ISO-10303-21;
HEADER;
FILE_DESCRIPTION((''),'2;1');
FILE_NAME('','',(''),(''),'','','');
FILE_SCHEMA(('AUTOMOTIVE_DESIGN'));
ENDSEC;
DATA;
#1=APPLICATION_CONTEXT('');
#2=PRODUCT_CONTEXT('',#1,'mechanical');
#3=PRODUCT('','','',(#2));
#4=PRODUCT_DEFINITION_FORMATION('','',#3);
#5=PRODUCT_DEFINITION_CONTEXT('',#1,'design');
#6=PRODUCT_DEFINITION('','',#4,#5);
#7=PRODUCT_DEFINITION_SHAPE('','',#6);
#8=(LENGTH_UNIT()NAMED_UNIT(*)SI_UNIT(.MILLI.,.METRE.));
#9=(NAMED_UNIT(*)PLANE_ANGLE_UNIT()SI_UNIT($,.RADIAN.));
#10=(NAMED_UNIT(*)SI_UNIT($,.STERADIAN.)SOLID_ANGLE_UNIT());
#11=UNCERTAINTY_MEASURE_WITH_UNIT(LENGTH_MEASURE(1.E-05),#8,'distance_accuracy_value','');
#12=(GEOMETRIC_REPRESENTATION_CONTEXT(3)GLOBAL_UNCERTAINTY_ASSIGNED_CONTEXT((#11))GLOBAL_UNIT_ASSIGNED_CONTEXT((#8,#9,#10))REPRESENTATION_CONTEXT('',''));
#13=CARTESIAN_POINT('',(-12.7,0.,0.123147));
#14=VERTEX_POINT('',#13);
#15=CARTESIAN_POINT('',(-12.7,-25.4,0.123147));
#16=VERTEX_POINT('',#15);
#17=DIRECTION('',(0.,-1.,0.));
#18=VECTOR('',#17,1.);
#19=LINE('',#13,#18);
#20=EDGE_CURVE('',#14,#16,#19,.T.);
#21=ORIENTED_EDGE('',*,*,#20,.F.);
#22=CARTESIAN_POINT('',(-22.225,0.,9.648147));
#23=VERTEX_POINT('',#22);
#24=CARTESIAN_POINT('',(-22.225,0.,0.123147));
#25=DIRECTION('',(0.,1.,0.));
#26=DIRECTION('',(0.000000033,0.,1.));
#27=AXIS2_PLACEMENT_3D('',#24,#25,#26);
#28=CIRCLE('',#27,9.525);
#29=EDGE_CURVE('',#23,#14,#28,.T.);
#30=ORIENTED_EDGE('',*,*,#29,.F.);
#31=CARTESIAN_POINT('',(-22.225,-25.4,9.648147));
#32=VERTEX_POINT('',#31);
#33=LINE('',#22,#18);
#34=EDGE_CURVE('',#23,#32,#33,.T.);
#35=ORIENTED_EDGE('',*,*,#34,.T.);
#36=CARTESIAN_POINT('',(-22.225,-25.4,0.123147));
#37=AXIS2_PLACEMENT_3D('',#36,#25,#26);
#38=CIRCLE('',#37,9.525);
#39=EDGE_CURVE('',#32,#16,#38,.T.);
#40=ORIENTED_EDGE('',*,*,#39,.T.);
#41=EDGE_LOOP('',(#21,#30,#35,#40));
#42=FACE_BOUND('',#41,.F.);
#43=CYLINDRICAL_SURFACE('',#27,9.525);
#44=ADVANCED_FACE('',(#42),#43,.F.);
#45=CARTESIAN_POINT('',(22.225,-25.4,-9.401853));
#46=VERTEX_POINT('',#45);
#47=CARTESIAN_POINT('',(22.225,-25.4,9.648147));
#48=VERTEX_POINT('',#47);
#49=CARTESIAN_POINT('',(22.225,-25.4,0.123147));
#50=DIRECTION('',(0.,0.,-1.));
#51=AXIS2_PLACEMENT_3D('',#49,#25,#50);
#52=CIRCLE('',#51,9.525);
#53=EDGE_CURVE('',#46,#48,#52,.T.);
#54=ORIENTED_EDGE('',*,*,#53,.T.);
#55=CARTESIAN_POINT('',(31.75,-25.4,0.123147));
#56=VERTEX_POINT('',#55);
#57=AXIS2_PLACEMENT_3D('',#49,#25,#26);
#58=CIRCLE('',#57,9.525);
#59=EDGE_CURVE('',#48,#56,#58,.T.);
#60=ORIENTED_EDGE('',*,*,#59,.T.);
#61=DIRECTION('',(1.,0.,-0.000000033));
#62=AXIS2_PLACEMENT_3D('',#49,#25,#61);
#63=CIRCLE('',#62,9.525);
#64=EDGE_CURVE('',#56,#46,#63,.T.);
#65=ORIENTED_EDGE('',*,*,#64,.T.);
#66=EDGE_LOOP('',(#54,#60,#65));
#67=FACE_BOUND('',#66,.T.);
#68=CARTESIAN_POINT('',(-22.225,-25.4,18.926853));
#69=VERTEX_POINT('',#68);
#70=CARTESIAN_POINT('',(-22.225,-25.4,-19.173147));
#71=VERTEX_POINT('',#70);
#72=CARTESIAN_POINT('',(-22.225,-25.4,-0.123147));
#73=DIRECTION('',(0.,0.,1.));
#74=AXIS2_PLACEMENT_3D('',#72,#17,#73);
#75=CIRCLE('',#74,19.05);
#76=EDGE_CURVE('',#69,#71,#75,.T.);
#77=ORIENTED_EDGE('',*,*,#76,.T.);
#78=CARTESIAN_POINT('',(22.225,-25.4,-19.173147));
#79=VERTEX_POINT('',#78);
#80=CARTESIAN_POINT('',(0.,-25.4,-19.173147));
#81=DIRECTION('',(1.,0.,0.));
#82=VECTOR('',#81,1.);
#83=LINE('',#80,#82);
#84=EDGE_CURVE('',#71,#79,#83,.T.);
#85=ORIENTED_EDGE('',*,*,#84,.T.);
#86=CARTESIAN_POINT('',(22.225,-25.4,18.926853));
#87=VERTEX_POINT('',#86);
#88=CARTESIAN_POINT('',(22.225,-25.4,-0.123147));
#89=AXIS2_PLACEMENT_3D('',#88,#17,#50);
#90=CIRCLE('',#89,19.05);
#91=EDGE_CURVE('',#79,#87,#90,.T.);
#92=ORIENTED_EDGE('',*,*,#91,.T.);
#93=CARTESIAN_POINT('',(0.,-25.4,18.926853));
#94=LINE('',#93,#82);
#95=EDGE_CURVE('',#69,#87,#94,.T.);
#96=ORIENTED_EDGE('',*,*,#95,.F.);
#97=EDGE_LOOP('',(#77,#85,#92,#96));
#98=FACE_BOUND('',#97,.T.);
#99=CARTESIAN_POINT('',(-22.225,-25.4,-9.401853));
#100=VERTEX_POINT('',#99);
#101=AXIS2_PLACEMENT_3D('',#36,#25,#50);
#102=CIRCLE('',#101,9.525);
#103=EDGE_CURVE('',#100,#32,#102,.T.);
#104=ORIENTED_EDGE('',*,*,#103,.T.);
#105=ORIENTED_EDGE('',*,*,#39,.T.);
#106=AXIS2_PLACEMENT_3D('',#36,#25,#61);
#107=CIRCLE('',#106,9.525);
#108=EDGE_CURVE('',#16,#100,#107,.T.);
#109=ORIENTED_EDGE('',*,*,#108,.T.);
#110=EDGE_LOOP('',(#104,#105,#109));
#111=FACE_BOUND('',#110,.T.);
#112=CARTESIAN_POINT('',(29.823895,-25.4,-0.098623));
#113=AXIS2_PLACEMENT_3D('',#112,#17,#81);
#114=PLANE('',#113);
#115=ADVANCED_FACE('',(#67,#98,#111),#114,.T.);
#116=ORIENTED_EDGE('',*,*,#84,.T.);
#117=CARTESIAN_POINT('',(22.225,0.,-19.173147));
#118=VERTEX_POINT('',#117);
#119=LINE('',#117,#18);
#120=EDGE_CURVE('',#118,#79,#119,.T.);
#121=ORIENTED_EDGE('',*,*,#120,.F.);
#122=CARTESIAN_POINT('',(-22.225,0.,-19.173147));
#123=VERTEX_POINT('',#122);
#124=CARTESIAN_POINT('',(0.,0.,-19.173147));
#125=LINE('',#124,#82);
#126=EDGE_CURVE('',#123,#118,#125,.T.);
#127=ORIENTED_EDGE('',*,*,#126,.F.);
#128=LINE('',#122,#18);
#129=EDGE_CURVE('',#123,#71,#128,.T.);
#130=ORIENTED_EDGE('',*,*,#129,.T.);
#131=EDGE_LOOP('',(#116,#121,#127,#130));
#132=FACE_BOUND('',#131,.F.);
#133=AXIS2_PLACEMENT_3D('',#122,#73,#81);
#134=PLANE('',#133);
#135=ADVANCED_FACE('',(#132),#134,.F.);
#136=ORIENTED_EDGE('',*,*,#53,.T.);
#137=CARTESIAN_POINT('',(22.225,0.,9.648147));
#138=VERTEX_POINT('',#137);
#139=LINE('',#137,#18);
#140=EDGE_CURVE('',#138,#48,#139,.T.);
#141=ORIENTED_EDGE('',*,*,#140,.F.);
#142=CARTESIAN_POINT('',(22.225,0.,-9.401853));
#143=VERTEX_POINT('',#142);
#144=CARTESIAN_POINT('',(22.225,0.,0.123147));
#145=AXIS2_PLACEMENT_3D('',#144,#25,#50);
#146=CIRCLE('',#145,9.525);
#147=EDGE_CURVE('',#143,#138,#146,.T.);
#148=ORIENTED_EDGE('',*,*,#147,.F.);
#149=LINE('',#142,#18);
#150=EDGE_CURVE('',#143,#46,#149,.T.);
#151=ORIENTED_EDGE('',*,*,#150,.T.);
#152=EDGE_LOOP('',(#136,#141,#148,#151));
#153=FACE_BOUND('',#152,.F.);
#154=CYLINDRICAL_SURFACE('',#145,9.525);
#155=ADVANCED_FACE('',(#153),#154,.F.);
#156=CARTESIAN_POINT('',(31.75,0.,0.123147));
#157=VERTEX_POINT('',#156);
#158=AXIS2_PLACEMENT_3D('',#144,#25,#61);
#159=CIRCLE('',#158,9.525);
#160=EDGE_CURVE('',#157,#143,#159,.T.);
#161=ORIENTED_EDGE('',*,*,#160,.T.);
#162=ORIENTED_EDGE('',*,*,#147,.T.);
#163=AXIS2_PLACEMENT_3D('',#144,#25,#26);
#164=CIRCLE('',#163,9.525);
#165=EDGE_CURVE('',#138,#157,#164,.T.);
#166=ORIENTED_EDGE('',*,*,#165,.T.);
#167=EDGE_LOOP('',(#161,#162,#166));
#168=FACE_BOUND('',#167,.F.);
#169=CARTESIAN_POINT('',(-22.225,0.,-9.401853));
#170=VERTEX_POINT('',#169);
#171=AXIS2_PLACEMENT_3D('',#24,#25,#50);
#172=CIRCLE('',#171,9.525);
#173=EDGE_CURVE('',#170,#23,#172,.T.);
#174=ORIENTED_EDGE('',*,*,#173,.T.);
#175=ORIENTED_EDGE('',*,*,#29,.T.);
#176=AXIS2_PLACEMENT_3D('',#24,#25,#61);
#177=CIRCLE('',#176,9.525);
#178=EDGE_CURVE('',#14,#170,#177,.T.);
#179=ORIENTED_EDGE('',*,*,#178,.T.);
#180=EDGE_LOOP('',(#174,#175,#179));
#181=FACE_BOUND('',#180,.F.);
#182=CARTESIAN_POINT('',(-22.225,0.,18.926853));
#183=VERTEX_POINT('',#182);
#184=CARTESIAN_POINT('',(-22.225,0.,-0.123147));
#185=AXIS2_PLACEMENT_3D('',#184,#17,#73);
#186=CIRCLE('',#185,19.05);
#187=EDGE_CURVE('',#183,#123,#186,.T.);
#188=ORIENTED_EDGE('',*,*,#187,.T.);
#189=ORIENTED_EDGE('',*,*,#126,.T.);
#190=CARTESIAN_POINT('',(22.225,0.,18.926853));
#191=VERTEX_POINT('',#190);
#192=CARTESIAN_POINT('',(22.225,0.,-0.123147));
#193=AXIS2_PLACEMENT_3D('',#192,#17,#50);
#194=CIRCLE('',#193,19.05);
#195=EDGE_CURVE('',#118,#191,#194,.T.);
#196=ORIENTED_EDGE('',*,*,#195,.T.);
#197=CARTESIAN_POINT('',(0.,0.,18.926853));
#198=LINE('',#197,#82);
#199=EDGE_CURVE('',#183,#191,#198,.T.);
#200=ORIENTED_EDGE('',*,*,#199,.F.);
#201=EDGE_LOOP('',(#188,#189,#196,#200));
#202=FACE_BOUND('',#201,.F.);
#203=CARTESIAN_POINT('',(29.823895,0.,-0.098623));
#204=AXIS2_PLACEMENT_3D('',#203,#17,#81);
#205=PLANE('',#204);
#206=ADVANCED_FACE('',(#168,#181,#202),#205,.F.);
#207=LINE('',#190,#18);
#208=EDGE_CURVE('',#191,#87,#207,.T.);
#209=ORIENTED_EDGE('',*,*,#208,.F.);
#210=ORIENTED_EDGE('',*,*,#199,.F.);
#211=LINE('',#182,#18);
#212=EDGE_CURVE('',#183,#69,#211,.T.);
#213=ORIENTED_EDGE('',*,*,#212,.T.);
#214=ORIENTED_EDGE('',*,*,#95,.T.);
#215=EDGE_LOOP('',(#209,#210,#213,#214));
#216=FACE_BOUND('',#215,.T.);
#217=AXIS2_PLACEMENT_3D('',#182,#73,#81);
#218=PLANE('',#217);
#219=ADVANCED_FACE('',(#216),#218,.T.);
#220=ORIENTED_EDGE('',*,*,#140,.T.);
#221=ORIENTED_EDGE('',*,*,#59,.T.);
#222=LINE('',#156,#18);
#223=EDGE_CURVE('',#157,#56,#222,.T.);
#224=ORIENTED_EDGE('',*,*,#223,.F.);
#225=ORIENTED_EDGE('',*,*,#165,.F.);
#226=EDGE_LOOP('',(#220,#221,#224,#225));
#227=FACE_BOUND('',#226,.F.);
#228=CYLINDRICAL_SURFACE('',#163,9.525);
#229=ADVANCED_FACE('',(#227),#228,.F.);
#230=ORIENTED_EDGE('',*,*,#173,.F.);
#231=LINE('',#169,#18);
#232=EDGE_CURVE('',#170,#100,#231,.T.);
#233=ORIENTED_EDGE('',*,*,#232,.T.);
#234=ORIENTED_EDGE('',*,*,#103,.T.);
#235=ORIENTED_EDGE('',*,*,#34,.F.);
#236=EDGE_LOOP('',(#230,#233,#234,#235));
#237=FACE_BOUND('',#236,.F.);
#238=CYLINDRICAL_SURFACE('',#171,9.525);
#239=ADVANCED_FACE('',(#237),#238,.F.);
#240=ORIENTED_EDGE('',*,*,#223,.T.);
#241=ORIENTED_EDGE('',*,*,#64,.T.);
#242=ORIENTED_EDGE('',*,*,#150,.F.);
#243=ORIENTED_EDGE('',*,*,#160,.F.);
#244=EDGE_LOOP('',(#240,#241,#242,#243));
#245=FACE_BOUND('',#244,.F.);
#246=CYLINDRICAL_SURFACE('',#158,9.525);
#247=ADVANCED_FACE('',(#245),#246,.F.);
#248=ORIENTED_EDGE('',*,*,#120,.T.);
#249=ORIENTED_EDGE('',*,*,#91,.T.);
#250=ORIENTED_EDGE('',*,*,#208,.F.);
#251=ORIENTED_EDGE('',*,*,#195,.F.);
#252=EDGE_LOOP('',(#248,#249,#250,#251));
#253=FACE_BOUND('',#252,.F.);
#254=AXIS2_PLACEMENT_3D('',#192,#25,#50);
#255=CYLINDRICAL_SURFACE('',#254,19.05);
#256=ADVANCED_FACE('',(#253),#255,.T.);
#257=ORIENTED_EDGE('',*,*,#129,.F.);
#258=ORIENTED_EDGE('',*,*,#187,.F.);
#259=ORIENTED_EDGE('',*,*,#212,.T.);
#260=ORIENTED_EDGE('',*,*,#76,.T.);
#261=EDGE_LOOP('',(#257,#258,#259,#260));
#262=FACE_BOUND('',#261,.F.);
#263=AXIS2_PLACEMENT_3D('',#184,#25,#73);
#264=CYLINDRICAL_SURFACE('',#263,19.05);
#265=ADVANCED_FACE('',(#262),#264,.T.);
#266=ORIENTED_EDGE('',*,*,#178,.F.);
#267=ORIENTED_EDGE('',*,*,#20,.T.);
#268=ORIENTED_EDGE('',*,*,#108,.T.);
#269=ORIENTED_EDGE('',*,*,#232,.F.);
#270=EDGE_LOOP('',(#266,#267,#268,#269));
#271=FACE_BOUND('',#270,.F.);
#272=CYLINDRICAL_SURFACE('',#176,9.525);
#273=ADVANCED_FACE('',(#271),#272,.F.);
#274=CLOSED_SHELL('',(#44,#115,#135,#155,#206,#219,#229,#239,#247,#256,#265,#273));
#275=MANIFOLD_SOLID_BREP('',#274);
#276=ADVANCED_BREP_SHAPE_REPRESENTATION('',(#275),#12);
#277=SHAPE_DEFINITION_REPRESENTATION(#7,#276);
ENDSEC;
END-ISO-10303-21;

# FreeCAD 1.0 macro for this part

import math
import FreeCAD as App
import Part
import Sketcher
Q = App.Units.Quantity

doc = App.newDocument("Part")
body = doc.addObject("PartDesign::Body", "Body")

# Sketch on XZ plane
sketch1 = body.newObject("Sketcher::SketchObject", "Sketch")
sketch1.AttachmentSupport = (doc.getObject("XZ_Plane"), [""])
sketch1.MapMode = "FlatFace"
sketch1.addGeometry(Part.ArcOfCircle(Part.Circle(App.Vector(22, 0, 0), App.Vector(0, 0, 1), 19), math.radians(-90), math.radians(90)), False)
sketch1.addGeometry(Part.LineSegment(App.Vector(22, 19, 0), App.Vector(-22, 19, 0)), False)
sketch1.addGeometry(Part.ArcOfCircle(Part.Circle(App.Vector(-22, 0, 0), App.Vector(0, 0, 1), 19), math.radians(90), math.radians(270)), False)
sketch1.addGeometry(Part.LineSegment(App.Vector(-22, -19, 0), App.Vector(22, -19, 0)), False)
sketch1.addGeometry(Part.ArcOfCircle(Part.Circle(App.Vector(22, 0, 0), App.Vector(0, 0, 1), 10), math.radians(0), math.radians(90)), False)
sketch1.addGeometry(Part.ArcOfCircle(Part.Circle(App.Vector(22, 0, 0), App.Vector(0, 0, 1), 10), math.radians(-90), math.radians(0)), False)
sketch1.addGeometry(Part.ArcOfCircle(Part.Circle(App.Vector(22, 0, 0), App.Vector(0, 0, 1), 10), math.radians(90), math.radians(270)), False)
sketch1.addGeometry(Part.ArcOfCircle(Part.Circle(App.Vector(-22, 0, 0), App.Vector(0, 0, 1), 10), math.radians(90), math.radians(270)), False)
sketch1.addGeometry(Part.ArcOfCircle(Part.Circle(App.Vector(-22, 0, 0), App.Vector(0, 0, 1), 10), math.radians(0), math.radians(90)), False)
sketch1.addGeometry(Part.ArcOfCircle(Part.Circle(App.Vector(-22, 0, 0), App.Vector(0, 0, 1), 10), math.radians(-90), math.radians(0)), False)
sketch1.addConstraint(Sketcher.Constraint("Tangent", 0, 2, 1, 1))
sketch1.addConstraint(Sketcher.Constraint("Tangent", 1, 2, 2, 1))
sketch1.addConstraint(Sketcher.Constraint("Tangent", 2, 2, 3, 1))
sketch1.addConstraint(Sketcher.Constraint("Tangent", 3, 2, 0, 1))
sketch1.addConstraint(Sketcher.Constraint("Tangent", 4, 1, 5, 2))
sketch1.addConstraint(Sketcher.Constraint("Tangent", 5, 1, 6, 2))
sketch1.addConstraint(Sketcher.Constraint("Tangent", 6, 1, 4, 2))
sketch1.addConstraint(Sketcher.Constraint("Tangent", 7, 1, 8, 2))
sketch1.addConstraint(Sketcher.Constraint("Tangent", 8, 1, 9, 2))
sketch1.addConstraint(Sketcher.Constraint("Tangent", 9, 1, 7, 2))
sketch1.addConstraint(Sketcher.Constraint("Horizontal", 1))
sketch1.addConstraint(Sketcher.Constraint("Horizontal", 3))
sketch1.addConstraint(Sketcher.Constraint("Equal", 6, 7))
sketch1.addConstraint(Sketcher.Constraint("Symmetric", 2, 3, 4, 3, -1, 1))
sketch1.addConstraint(Sketcher.Constraint("Symmetric", 0, 3, 7, 3, -1, 1))
sketch1.addConstraint(Sketcher.Constraint("Horizontal", 9, 3, 4, 1))
sketch1.addConstraint(Sketcher.Constraint("Horizontal", 4, 1, 8, 1))
sketch1.addConstraint(Sketcher.Constraint("Vertical", 0, 3, 4, 3))
sketch1.addConstraint(Sketcher.Constraint("Vertical", 3, 2, 5, 1))
sketch1.addConstraint(Sketcher.Constraint("Vertical", 5, 1, 6, 1))
sketch1.addConstraint(Sketcher.Constraint("Vertical", 2, 2, 7, 1))
sketch1.addConstraint(Sketcher.Constraint("Vertical", 7, 1, 9, 1))
sketch1.addConstraint(Sketcher.Constraint("Radius", 0, Q("0.75 in")))
sketch1.addConstraint(Sketcher.Constraint("Radius", 4, Q("0.375 in")))
sketch1.addConstraint(Sketcher.Constraint("DistanceX", 1, 2, 1, 1, Q("1.75 in")))
sketch1.addConstraint(Sketcher.Constraint("DistanceY", 0, 3, -1, 1, 0.123147))
pad1 = body.newObject("PartDesign::Pad", "Pad")
pad1.Profile = sketch1
pad1.Length = Q("1 in")

doc.recompute()
